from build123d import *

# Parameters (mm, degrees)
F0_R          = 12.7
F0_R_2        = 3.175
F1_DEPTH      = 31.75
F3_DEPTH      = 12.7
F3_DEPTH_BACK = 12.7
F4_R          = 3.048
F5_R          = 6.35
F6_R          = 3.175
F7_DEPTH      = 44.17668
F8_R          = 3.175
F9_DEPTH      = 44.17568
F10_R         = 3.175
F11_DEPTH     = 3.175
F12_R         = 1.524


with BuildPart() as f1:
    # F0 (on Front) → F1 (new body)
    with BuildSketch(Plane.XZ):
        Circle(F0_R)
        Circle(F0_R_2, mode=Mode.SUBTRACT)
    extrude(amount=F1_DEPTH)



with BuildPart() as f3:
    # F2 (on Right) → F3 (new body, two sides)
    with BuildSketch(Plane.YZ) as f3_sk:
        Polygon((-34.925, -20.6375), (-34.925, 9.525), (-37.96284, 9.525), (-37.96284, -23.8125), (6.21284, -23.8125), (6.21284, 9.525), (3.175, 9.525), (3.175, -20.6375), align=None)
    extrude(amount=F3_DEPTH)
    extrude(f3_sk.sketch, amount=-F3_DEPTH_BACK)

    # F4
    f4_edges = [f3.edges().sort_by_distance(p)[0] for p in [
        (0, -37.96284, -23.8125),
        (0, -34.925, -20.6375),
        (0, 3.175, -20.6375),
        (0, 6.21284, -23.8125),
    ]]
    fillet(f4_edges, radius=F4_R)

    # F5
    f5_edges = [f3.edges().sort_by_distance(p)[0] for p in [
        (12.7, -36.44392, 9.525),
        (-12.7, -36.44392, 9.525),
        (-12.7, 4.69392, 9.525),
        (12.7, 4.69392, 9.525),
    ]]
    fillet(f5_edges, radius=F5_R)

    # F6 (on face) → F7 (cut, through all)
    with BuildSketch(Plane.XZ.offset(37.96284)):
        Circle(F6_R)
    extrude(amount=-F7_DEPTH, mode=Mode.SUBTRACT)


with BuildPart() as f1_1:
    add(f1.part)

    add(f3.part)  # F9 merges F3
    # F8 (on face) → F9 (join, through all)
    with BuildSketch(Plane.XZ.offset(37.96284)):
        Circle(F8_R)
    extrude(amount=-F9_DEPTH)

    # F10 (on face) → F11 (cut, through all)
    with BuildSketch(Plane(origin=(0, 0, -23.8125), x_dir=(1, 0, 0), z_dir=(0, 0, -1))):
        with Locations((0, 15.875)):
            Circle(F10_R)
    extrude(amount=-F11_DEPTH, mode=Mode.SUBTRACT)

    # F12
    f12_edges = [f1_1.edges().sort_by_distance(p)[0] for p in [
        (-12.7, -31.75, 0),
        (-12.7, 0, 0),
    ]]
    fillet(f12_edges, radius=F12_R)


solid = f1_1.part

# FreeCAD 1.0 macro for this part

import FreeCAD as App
import Part
import Sketcher
Q = App.Units.Quantity


def edges_at(feature, points):
    """Names of the edges that pass closest to the given points."""
    edges = feature.Shape.Edges
    near = lambda p: min(range(len(edges)), key=lambda i: edges[i].distToShape(Part.Vertex(*p))[0])
    return sorted({f"Edge{near(p) + 1}" for p in points})


def add_polygon(sketch, points):
    """Adds a closed chain of lines whose ends are joined by coincident constraints."""
    first, n = sketch.GeometryCount, len(points)
    for a, b in zip(points, points[1:] + points[:1]):
        sketch.addGeometry(Part.LineSegment(App.Vector(*a, 0), App.Vector(*b, 0)), False)
    for i in range(n):
        sketch.addConstraint(Sketcher.Constraint("Coincident", first + i, 2, first + (i + 1) % n, 1))

doc = App.newDocument("Part")
body = doc.addObject("PartDesign::Body", "Body")

# Sketch on XZ plane
sketch1 = body.newObject("Sketcher::SketchObject", "Sketch")
sketch1.AttachmentSupport = (doc.getObject("XZ_Plane"), [""])
sketch1.MapMode = "FlatFace"
sketch1.addGeometry([
    Part.Circle(App.Vector(0, 0, 0), App.Vector(0, 0, 1), 12.7),
    Part.Circle(App.Vector(0, 0, 0), App.Vector(0, 0, 1), 3.175),
], False)
sketch1.addConstraint([
    Sketcher.Constraint("Coincident", 0, 3, -1, 1),
    Sketcher.Constraint("Coincident", 1, 3, -1, 1),
    Sketcher.Constraint("Diameter", 0, Q("1 in")),
    Sketcher.Constraint("Diameter", 1, Q("0.25 in")),
])
pad1 = body.newObject("PartDesign::Pad", "Pad")
pad1.Profile = sketch1
pad1.Length = Q("1.25 in")
body2 = doc.addObject("PartDesign::Body", "Body001")

# Sketch on YZ plane
sketch2 = body2.newObject("Sketcher::SketchObject", "Sketch001")
sketch2.AttachmentSupport = (doc.getObject("YZ_Plane001"), [""])
sketch2.MapMode = "FlatFace"
add_polygon(sketch2, [(-34.925, -20.6375), (-34.925, 9.525), (-37.96284, 9.525), (-37.96284, -23.8125), (6.21284, -23.8125), (6.21284, 9.525), (3.175, 9.525), (3.175, -20.6375)])  # lines 0-7
sketch2.addConstraint([
    Sketcher.Constraint("Vertical", 0),
    Sketcher.Constraint("Horizontal", 1),
    Sketcher.Constraint("Vertical", 2),
    Sketcher.Constraint("Horizontal", 3),
    Sketcher.Constraint("Vertical", 4),
    Sketcher.Constraint("Horizontal", 5),
    Sketcher.Constraint("Vertical", 6),
    Sketcher.Constraint("Horizontal", 7),
    Sketcher.Constraint("Horizontal", 1, 2, 4, 2),
    Sketcher.Constraint("Equal", 1, 5),
    Sketcher.Constraint("DistanceX", 7, 2, 7, 1, Q("1.5 in")),
    Sketcher.Constraint("DistanceY", 0, 1, 0, 2, Q("1.1875 in")),
    Sketcher.Constraint("DistanceY", 2, 2, 2, 1, Q("1.3125 in")),
    Sketcher.Constraint("DistanceX", 1, 2, 1, 1, Q("0.1196 in")),
    Sketcher.Constraint("DistanceX", 0, 2, -1, 1, Q("1.375 in")),
    Sketcher.Constraint("DistanceY", -1, 1, 0, 2, Q("0.375 in")),
])
pad2 = body2.newObject("PartDesign::Pad", "Pad001")
pad2.Profile = sketch2
pad2.Type = "TwoLengths"
pad2.Length = Q("0.5 in")
pad2.Length2 = Q("0.5 in")
doc.recompute()

fillet = body2.newObject("PartDesign::Fillet", "Fillet")
fillet.Base = (pad2, edges_at(pad2, [
    (0, -37.963, -23.812),
    (0, -34.925, -20.637),
    (0, 3.175, -20.637),
    (0, 6.213, -23.812),
]))
fillet.Radius = Q("0.12 in")
doc.recompute()

fillet2 = body2.newObject("PartDesign::Fillet", "Fillet001")
fillet2.Base = (fillet, edges_at(fillet, [
    (12.7, -36.444, 9.525),
    (-12.7, -36.444, 9.525),
    (-12.7, 4.694, 9.525),
    (12.7, 4.694, 9.525),
]))
fillet2.Radius = Q("0.25 in")

# Sketch on XZ plane
sketch3 = body2.newObject("Sketcher::SketchObject", "Sketch002")
sketch3.AttachmentSupport = (doc.getObject("XZ_Plane001"), [""])
sketch3.MapMode = "FlatFace"
sketch3.AttachmentOffset = App.Placement(App.Vector(0, 0, 1.4946 * 25.4), App.Rotation())
sketch3.addGeometry(Part.Circle(App.Vector(0, 0, 0), App.Vector(0, 0, 1), 3.175), False)
sketch3.addConstraint([
    Sketcher.Constraint("Coincident", 0, 3, -1, 1),
    Sketcher.Constraint("Diameter", 0, Q("0.25 in")),
])
pocket1 = body2.newObject("PartDesign::Pocket", "Pocket")
pocket1.Profile = sketch3
pocket1.Type = "ThroughAll"
body.AllowCompound = True
doc.recompute()

boolean = body.newObject("PartDesign::Boolean", "Boolean")
boolean.Type = "Fuse"
boolean.addObjects([body2])

# Sketch on XZ plane
sketch4 = body.newObject("Sketcher::SketchObject", "Sketch003")
sketch4.AttachmentSupport = (doc.getObject("XZ_Plane"), [""])
sketch4.MapMode = "FlatFace"
sketch4.AttachmentOffset = App.Placement(App.Vector(0, 0, 1.4946 * 25.4), App.Rotation())
sketch4.addGeometry(Part.Circle(App.Vector(0, 0, 0), App.Vector(0, 0, 1), 3.175), False)
sketch4.addConstraint([
    Sketcher.Constraint("Coincident", 0, 3, -1, 1),
    Sketcher.Constraint("Diameter", 0, Q("0.25 in")),
])
pad3 = body.newObject("PartDesign::Pad", "Pad002")
pad3.Profile = sketch4
pad3.Length = Q("1.7392 in")
pad3.Reversed = True

# Sketch on XY plane
sketch5 = body.newObject("Sketcher::SketchObject", "Sketch004")
sketch5.AttachmentSupport = (doc.getObject("XY_Plane"), [""])
sketch5.MapMode = "FlatFace"
sketch5.AttachmentOffset = App.Placement(App.Vector(0, 0, -0.9375 * 25.4), App.Rotation())
sketch5.addGeometry(Part.Circle(App.Vector(0, -15.875, 0), App.Vector(0, 0, 1), 3.175), False)
sketch5.addConstraint([
    Sketcher.Constraint("PointOnObject", 0, 3, -2),
    Sketcher.Constraint("Diameter", 0, Q("0.25 in")),
    Sketcher.Constraint("DistanceY", 0, 3, -1, 1, Q("0.625 in")),
])
pocket2 = body.newObject("PartDesign::Pocket", "Pocket001")
pocket2.Profile = sketch5
pocket2.Length = Q("0.125 in")
pocket2.Reversed = True
doc.recompute()

fillet3 = body.newObject("PartDesign::Fillet", "Fillet002")
fillet3.Base = (pocket2, edges_at(pocket2, [(-12.7, -31.75, 0), (-12.7, 0, 0)]))
fillet3.Radius = Q("0.06 in")

doc.recompute()
